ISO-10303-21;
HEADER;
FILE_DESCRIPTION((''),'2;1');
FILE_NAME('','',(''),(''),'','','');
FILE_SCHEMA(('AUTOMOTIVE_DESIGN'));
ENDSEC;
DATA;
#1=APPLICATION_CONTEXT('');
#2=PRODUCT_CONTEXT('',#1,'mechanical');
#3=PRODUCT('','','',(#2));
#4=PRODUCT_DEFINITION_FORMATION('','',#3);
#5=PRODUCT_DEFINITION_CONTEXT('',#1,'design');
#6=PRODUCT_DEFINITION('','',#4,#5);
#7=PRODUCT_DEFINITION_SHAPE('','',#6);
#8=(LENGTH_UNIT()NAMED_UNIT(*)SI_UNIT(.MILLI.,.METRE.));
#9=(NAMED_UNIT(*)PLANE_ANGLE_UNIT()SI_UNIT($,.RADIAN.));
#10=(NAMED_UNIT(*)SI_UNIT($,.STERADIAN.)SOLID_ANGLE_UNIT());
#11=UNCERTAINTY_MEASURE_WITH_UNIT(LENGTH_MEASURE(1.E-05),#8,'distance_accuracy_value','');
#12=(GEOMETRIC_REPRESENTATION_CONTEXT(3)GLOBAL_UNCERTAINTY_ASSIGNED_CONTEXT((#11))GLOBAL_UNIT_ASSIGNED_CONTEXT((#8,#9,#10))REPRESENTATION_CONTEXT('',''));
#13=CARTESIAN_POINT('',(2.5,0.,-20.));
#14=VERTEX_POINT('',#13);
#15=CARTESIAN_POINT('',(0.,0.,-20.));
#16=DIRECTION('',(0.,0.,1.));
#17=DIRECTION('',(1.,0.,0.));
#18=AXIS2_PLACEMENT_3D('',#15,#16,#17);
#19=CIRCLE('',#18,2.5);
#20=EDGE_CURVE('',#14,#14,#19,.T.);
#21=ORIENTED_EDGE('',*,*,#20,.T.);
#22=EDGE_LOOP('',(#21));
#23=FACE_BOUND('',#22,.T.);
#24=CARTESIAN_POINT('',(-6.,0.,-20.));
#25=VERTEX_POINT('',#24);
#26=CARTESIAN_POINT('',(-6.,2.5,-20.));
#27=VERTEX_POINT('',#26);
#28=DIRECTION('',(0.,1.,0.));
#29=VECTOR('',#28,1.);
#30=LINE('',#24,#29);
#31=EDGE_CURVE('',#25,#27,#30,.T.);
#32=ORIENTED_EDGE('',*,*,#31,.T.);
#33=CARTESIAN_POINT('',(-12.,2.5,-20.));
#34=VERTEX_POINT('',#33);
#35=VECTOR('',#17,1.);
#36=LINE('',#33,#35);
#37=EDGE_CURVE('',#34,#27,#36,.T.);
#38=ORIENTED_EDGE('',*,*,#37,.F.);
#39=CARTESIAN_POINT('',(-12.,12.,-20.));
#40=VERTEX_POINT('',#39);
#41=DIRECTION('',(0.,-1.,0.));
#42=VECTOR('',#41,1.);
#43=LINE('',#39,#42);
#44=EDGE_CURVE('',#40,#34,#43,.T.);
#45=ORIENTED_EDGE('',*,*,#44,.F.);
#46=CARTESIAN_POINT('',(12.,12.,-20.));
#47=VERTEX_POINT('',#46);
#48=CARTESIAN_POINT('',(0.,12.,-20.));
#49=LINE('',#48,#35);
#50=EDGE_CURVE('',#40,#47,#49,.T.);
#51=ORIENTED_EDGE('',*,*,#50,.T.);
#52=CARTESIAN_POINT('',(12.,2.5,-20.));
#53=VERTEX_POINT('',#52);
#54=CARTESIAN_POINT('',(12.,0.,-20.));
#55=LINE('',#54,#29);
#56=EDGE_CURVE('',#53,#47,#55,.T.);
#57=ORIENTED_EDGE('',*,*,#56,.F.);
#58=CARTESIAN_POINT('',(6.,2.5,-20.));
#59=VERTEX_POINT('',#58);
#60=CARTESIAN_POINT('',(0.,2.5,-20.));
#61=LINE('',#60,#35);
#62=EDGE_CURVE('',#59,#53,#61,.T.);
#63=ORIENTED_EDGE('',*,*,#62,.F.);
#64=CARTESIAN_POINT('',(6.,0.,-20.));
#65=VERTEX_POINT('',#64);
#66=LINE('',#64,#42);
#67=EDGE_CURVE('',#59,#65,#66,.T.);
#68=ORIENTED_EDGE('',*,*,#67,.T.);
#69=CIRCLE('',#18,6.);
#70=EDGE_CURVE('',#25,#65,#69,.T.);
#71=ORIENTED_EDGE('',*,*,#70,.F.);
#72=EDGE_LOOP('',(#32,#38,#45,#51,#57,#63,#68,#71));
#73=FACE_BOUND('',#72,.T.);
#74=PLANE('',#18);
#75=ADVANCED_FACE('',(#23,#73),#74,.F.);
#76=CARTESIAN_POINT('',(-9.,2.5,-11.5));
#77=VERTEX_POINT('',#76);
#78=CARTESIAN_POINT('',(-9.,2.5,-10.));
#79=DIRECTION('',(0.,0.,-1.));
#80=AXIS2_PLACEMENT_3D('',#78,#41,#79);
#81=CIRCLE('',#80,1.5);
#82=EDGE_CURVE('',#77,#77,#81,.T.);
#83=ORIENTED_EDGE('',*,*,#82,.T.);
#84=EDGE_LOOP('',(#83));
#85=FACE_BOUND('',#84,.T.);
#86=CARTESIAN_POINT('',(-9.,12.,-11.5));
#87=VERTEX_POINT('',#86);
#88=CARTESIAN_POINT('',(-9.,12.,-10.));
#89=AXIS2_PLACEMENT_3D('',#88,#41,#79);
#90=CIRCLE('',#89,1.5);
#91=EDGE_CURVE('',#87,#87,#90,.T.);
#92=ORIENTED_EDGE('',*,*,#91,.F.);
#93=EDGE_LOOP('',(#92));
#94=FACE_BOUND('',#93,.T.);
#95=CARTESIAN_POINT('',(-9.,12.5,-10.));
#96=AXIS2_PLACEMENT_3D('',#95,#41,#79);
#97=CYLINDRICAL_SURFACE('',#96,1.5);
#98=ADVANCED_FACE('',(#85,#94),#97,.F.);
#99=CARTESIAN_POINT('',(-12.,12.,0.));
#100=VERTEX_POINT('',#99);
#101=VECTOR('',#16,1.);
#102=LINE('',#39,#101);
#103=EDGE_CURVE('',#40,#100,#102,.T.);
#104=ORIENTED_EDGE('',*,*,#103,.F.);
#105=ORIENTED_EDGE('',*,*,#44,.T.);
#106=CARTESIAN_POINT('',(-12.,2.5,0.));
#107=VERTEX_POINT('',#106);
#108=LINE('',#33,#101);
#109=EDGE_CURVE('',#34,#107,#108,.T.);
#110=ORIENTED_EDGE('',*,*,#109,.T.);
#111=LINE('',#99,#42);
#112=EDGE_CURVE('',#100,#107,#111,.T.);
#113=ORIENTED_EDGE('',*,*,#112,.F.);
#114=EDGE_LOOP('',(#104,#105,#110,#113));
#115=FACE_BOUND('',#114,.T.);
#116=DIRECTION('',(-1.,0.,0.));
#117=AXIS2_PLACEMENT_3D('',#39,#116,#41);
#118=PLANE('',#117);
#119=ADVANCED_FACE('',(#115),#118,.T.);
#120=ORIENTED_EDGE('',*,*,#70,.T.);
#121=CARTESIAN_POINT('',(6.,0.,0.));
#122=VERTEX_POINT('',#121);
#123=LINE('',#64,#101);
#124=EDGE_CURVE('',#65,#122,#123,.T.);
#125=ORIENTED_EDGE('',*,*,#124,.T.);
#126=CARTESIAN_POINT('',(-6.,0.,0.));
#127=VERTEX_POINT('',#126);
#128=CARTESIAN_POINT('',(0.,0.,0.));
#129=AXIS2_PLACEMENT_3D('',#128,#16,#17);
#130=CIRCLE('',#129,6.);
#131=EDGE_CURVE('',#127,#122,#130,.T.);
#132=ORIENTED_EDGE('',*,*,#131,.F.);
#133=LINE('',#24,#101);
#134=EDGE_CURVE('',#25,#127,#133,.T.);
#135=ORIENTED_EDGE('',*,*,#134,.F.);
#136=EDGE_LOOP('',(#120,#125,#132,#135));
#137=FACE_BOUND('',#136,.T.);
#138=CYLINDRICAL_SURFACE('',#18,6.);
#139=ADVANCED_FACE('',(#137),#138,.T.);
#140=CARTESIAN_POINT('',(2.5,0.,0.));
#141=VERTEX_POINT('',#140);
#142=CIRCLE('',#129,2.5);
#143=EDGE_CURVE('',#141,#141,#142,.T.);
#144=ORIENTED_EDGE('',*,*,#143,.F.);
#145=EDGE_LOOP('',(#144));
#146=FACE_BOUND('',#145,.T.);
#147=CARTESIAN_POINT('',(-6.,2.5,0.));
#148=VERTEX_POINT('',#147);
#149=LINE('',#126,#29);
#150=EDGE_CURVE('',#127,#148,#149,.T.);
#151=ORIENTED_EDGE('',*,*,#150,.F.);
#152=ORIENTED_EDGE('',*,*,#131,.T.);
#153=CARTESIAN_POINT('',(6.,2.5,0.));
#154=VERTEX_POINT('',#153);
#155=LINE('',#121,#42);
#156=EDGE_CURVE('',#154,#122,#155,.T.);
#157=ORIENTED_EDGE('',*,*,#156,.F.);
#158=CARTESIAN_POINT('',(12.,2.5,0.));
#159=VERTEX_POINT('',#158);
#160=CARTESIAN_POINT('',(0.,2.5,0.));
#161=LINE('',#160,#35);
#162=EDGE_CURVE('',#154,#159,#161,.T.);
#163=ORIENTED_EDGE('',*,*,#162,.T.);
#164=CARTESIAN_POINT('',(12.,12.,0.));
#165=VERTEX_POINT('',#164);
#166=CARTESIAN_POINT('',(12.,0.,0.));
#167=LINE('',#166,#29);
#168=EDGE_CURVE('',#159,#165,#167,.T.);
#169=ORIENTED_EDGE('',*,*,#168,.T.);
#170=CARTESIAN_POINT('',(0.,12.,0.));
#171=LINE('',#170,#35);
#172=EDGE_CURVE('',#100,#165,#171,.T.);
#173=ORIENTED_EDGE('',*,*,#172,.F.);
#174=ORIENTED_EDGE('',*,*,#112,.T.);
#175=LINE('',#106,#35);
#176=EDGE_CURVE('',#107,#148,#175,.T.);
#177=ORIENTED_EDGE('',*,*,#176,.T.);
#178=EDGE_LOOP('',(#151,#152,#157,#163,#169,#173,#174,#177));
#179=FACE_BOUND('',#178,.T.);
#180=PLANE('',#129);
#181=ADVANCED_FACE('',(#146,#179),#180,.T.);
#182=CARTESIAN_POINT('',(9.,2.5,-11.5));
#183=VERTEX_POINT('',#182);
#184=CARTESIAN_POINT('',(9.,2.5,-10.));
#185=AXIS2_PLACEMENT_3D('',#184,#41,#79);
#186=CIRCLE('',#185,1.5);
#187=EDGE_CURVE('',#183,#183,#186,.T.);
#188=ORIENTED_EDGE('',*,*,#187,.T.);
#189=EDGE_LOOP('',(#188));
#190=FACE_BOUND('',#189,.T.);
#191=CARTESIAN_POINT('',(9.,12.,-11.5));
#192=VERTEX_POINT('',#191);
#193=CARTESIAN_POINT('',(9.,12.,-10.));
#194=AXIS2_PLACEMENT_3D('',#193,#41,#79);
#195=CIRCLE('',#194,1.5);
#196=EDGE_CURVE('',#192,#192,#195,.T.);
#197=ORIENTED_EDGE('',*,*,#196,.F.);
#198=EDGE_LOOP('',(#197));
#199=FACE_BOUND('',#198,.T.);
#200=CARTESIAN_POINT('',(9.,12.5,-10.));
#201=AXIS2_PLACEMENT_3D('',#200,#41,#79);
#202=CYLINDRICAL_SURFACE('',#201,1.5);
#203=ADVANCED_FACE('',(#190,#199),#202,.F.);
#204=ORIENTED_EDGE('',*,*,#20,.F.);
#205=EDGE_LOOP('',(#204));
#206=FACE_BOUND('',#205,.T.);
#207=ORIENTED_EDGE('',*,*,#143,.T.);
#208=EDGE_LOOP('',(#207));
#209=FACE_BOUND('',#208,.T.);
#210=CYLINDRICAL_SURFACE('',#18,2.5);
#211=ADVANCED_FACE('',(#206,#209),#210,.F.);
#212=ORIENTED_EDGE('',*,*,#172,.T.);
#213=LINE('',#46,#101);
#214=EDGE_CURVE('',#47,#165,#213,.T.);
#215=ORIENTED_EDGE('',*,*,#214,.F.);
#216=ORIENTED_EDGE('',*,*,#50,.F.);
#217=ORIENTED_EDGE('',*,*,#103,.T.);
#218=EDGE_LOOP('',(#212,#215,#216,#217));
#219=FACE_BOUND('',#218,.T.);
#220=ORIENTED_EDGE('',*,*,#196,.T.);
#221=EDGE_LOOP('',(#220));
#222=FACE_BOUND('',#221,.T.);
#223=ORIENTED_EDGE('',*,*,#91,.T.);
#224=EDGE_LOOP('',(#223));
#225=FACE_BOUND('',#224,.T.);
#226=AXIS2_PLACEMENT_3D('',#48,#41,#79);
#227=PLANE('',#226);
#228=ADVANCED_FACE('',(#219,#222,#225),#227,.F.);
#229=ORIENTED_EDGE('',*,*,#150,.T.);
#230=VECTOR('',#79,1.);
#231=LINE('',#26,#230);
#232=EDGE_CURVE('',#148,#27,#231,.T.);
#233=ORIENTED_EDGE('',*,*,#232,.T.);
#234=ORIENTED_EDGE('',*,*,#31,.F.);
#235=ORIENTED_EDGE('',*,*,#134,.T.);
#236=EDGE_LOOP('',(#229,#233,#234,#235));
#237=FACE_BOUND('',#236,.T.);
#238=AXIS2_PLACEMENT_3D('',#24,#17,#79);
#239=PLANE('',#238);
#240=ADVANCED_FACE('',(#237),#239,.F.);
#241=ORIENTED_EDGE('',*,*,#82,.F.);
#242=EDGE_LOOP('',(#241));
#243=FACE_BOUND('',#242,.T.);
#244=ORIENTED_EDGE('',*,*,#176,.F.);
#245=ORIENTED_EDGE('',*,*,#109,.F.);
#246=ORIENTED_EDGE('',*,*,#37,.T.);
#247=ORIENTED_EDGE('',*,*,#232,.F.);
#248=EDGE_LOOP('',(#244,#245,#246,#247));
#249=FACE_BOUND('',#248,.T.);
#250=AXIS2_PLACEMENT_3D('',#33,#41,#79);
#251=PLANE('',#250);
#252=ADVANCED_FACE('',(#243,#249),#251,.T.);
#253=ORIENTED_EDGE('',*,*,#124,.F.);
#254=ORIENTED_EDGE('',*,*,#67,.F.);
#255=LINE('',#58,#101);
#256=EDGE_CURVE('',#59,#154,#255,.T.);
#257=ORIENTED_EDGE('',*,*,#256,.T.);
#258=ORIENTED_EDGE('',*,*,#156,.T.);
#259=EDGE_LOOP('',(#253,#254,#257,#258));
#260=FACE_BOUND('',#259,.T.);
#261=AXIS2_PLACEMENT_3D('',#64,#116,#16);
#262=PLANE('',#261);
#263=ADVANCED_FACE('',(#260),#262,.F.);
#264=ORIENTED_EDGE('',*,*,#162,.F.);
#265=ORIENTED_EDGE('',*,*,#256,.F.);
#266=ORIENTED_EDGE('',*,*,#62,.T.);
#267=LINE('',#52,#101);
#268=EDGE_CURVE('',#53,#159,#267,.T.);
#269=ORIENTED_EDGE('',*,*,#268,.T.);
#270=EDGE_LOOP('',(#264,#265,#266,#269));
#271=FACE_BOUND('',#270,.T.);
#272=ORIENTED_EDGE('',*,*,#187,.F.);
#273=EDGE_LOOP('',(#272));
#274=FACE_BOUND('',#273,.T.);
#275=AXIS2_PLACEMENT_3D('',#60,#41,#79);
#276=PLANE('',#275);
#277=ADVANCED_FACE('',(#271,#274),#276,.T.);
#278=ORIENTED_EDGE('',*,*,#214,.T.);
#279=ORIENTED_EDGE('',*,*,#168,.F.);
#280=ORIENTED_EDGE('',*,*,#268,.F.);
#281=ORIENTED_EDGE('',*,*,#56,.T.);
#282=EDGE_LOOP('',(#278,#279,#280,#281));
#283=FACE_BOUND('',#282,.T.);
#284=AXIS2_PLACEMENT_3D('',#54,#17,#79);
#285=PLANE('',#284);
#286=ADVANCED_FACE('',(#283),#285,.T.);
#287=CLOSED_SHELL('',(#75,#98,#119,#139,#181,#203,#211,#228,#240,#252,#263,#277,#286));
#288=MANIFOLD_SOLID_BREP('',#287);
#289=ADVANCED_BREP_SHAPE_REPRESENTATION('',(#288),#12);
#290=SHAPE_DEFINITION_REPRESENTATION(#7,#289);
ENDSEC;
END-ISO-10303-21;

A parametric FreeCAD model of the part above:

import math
import FreeCAD as App
import Part
import Sketcher
from FreeCAD import Vector
Q = App.Units.Quantity

doc = App.newDocument("Part")
body = doc.addObject("PartDesign::Body", "Body")

# Sketch on XY plane
sketch1 = body.newObject("Sketcher::SketchObject", "Sketch")
sketch1.AttachmentSupport = (doc.getObject("XY_Plane"), [""])
sketch1.MapMode = "FlatFace"
sketch1.addGeometry([
    Part.ArcOfCircle(Part.Circle(Vector(0, 0, 0), Vector(0, 0, 1), 6), math.radians(180), math.radians(360)),  # 0
    Part.LineSegment(Vector(6, 0, 0), Vector(6, 2.5, 0)),  # 1
    Part.LineSegment(Vector(6, 2.5, 0), Vector(12, 2.5, 0)),  # 2
    Part.LineSegment(Vector(12, 2.5, 0), Vector(12, 12, 0)),  # 3
    Part.LineSegment(Vector(12, 12, 0), Vector(-12, 12, 0)),  # 4
    Part.LineSegment(Vector(-12, 12, 0), Vector(-12, 2.5, 0)),  # 5
    Part.LineSegment(Vector(-12, 2.5, 0), Vector(-6, 2.5, 0)),  # 6
    Part.LineSegment(Vector(-6, 2.5, 0), Vector(-6, 0, 0)),  # 7
    Part.Circle(Vector(0, 0, 0), Vector(0, 0, 1), 2.5),  # 8
], False)
sketch1.addConstraint([
    Sketcher.Constraint("Tangent", 0, 2, 1, 1),
    Sketcher.Constraint("Coincident", 1, 2, 2, 1),
    Sketcher.Constraint("Coincident", 2, 2, 3, 1),
    Sketcher.Constraint("Coincident", 3, 2, 4, 1),
    Sketcher.Constraint("Coincident", 4, 2, 5, 1),
    Sketcher.Constraint("Coincident", 5, 2, 6, 1),
    Sketcher.Constraint("Coincident", 6, 2, 7, 1),
    Sketcher.Constraint("Tangent", 7, 2, 0, 1),
    Sketcher.Constraint("Vertical", 1),
    Sketcher.Constraint("Horizontal", 2),
    Sketcher.Constraint("Vertical", 3),
    Sketcher.Constraint("Horizontal", 4),
    Sketcher.Constraint("Vertical", 5),
    Sketcher.Constraint("Horizontal", 6),
    Sketcher.Constraint("Vertical", 7),
    Sketcher.Constraint("Coincident", 0, 3, -1, 1),
    Sketcher.Constraint("Coincident", 8, 3, -1, 1),
    Sketcher.Constraint("Symmetric", 2, 2, 5, 2, -2),
    Sketcher.Constraint("Diameter", 8, Q("5 mm")),
    Sketcher.Constraint("Radius", 0, Q("6 mm")),
    Sketcher.Constraint("DistanceX", 2, 1, 2, 2, Q("6 mm")),
    Sketcher.Constraint("DistanceY", 1, 1, 1, 2, Q("2.5 mm")),
    Sketcher.Constraint("DistanceY", 3, 1, 3, 2, Q("9.5 mm")),
])
pad1 = body.newObject("PartDesign::Pad", "Pad")
pad1.Profile = sketch1
pad1.Length = 20
pad1.Reversed = True

# Sketch on XZ plane
sketch2 = body.newObject("Sketcher::SketchObject", "Sketch001")
sketch2.AttachmentSupport = (doc.getObject("XZ_Plane"), [""])
sketch2.MapMode = "FlatFace"
sketch2.AttachmentOffset = App.Placement(Vector(0, 0, -2.5), App.Rotation())
sketch2.addGeometry([
    Part.Circle(Vector(-9, -10, 0), Vector(0, 0, 1), 1.5),
    Part.Circle(Vector(9, -10, 0), Vector(0, 0, 1), 1.5),
], False)
sketch2.addConstraint([
    Sketcher.Constraint("Equal", 0, 1),
    Sketcher.Constraint("Symmetric", 0, 3, 1, 3, -2),
    Sketcher.Constraint("Diameter", 0, Q("3 mm")),
    Sketcher.Constraint("DistanceX", 0, 3, -1, 1, Q("9 mm")),
    Sketcher.Constraint("DistanceY", 0, 3, -1, 1, Q("10 mm")),
])
pocket1 = body.newObject("PartDesign::Pocket", "Pocket")
pocket1.Profile = sketch2
pocket1.Length = 10

doc.recompute()
